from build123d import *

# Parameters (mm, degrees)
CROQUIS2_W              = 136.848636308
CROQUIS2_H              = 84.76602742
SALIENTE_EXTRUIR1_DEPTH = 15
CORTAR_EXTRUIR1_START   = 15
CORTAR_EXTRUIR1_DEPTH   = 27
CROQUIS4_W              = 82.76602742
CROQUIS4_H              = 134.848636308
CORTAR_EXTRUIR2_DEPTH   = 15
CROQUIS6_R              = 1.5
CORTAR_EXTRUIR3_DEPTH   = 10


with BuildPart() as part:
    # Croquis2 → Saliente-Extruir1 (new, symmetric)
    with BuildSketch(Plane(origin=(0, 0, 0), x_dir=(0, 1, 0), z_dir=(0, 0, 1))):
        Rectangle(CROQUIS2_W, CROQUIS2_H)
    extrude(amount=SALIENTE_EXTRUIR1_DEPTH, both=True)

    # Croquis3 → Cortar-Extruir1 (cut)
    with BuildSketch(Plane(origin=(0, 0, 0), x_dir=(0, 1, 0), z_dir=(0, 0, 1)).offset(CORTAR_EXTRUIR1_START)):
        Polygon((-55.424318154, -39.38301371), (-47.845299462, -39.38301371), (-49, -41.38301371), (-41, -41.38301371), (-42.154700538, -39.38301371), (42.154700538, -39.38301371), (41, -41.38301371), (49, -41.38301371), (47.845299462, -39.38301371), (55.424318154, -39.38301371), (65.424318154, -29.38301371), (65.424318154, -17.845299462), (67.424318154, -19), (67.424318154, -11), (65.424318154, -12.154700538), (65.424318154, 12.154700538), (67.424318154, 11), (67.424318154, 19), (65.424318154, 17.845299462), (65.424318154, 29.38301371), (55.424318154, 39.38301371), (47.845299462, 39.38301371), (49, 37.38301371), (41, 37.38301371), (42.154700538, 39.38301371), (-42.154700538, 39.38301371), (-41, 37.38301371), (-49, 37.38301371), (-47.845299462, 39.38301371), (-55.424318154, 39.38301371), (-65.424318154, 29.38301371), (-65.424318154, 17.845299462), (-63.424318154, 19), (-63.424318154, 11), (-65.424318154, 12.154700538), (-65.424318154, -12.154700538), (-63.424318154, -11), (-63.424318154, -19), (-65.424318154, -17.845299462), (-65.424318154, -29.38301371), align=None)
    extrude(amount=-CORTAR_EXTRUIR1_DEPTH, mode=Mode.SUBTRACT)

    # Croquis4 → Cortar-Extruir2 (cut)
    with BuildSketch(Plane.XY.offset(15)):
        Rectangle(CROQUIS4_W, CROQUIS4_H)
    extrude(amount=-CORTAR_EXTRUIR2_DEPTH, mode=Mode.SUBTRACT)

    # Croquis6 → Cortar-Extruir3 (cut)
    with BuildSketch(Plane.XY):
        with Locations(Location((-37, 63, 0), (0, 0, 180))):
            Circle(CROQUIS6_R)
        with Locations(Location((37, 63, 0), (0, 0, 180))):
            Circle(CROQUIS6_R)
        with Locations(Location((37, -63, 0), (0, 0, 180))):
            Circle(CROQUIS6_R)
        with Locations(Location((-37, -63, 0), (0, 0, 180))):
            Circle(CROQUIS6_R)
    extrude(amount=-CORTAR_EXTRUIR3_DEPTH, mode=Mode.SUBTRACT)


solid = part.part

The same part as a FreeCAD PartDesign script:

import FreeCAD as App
import Part
import Sketcher
from FreeCAD import Vector
Q = App.Units.Quantity

doc = App.newDocument("Part")
params = doc.addObject("Spreadsheet::Sheet", "Params")
for row, (alias, value) in enumerate([
    ("pad1_length", "30 mm"),
    ("sketch2_width", "8 mm"),
    ("pocket1_length", "27 mm"),
    ("pocket2_length", "15 mm"),
    ("sketch4_diameter", "3 mm"),
    ("pocket3_length", "10 mm"),
], start=1):
    params.set(f"A{row}", alias)
    params.set(f"B{row}", "=" + value)
    params.setAlias(f"B{row}", alias)

body = doc.addObject("PartDesign::Body", "Body")

# Sketch on XY plane
sketch1 = body.newObject("Sketcher::SketchObject", "Sketch")
sketch1.AttachmentSupport = (doc.getObject("XY_Plane"), [""])
sketch1.MapMode = "FlatFace"
sketch1.addGeometry([
    Part.LineSegment(Vector(-42, -68, 0), Vector(42, -68, 0)),
    Part.LineSegment(Vector(42, -68, 0), Vector(42, 68, 0)),
    Part.LineSegment(Vector(42, 68, 0), Vector(-42, 68, 0)),
    Part.LineSegment(Vector(-42, 68, 0), Vector(-42, -68, 0)),
], False)
sketch1.addConstraint([
    Sketcher.Constraint("Coincident", 0, 2, 1, 1),
    Sketcher.Constraint("Coincident", 1, 2, 2, 1),
    Sketcher.Constraint("Coincident", 2, 2, 3, 1),
    Sketcher.Constraint("Coincident", 3, 2, 0, 1),
    Sketcher.Constraint("Horizontal", 0),
    Sketcher.Constraint("Vertical", 1),
    Sketcher.Constraint("Horizontal", 2),
    Sketcher.Constraint("Vertical", 3),
    Sketcher.Constraint("Symmetric", 0, 2, 2, 2, -1, 1),
    Sketcher.Constraint("DistanceX", 0, 1, 0, 2, 84.766027),
    Sketcher.Constraint("DistanceY", 1, 1, 1, 2, 136.848636),
])
pad1 = body.newObject("PartDesign::Pad", "Pad")
pad1.Profile = sketch1
pad1.setExpression("Length", "Params.pad1_length")
pad1.Midplane = True

# Sketch on XY plane
sketch2 = body.newObject("Sketcher::SketchObject", "Sketch001")
sketch2.AttachmentSupport = (doc.getObject("XY_Plane"), [""])
sketch2.MapMode = "FlatFace"
sketch2.AttachmentOffset = App.Placement(Vector(0, 0, 15), App.Rotation())
sketch2.addGeometry([
    Part.LineSegment(Vector(39.4, -55.4, 0), Vector(39.4, -47.8, 0)),  # 0
    Part.LineSegment(Vector(39.4, -47.8, 0), Vector(41.4, -49, 0)),  # 1
    Part.LineSegment(Vector(41.4, -49, 0), Vector(41.4, -41, 0)),  # 2
    Part.LineSegment(Vector(41.4, -41, 0), Vector(39.4, -42.2, 0)),  # 3
    Part.LineSegment(Vector(39.4, -42.2, 0), Vector(39.4, 42.2, 0)),  # 4
    Part.LineSegment(Vector(39.4, 42.2, 0), Vector(41.4, 41, 0)),  # 5
    Part.LineSegment(Vector(41.4, 41, 0), Vector(41.4, 49, 0)),  # 6
    Part.LineSegment(Vector(41.4, 49, 0), Vector(39.4, 47.8, 0)),  # 7
    Part.LineSegment(Vector(39.4, 47.8, 0), Vector(39.4, 55.4, 0)),  # 8
    Part.LineSegment(Vector(39.4, 55.4, 0), Vector(29.4, 65.4, 0)),  # 9
    Part.LineSegment(Vector(29.4, 65.4, 0), Vector(17.8, 65.4, 0)),  # 10
    Part.LineSegment(Vector(17.8, 65.4, 0), Vector(19, 67.4, 0)),  # 11
    Part.LineSegment(Vector(19, 67.4, 0), Vector(11, 67.4, 0)),  # 12
    Part.LineSegment(Vector(11, 67.4, 0), Vector(12.2, 65.4, 0)),  # 13
    Part.LineSegment(Vector(12.2, 65.4, 0), Vector(-12.2, 65.4, 0)),  # 14
    Part.LineSegment(Vector(-12.2, 65.4, 0), Vector(-11, 67.4, 0)),  # 15
    Part.LineSegment(Vector(-11, 67.4, 0), Vector(-19, 67.4, 0)),  # 16
    Part.LineSegment(Vector(-19, 67.4, 0), Vector(-17.8, 65.4, 0)),  # 17
    Part.LineSegment(Vector(-17.8, 65.4, 0), Vector(-29.4, 65.4, 0)),  # 18
    Part.LineSegment(Vector(-29.4, 65.4, 0), Vector(-39.4, 55.4, 0)),  # 19
    Part.LineSegment(Vector(-39.4, 55.4, 0), Vector(-39.4, 47.8, 0)),  # 20
    Part.LineSegment(Vector(-39.4, 47.8, 0), Vector(-37.4, 49, 0)),  # 21
    Part.LineSegment(Vector(-37.4, 49, 0), Vector(-37.4, 41, 0)),  # 22
    Part.LineSegment(Vector(-37.4, 41, 0), Vector(-39.4, 42.2, 0)),  # 23
    Part.LineSegment(Vector(-39.4, 42.2, 0), Vector(-39.4, -42.2, 0)),  # 24
    Part.LineSegment(Vector(-39.4, -42.2, 0), Vector(-37.4, -41, 0)),  # 25
    Part.LineSegment(Vector(-37.4, -41, 0), Vector(-37.4, -49, 0)),  # 26
    Part.LineSegment(Vector(-37.4, -49, 0), Vector(-39.4, -47.8, 0)),  # 27
    Part.LineSegment(Vector(-39.4, -47.8, 0), Vector(-39.4, -55.4, 0)),  # 28
    Part.LineSegment(Vector(-39.4, -55.4, 0), Vector(-29.4, -65.4, 0)),  # 29
    Part.LineSegment(Vector(-29.4, -65.4, 0), Vector(-17.8, -65.4, 0)),  # 30
    Part.LineSegment(Vector(-17.8, -65.4, 0), Vector(-19, -63.4, 0)),  # 31
    Part.LineSegment(Vector(-19, -63.4, 0), Vector(-11, -63.4, 0)),  # 32
    Part.LineSegment(Vector(-11, -63.4, 0), Vector(-12.2, -65.4, 0)),  # 33
    Part.LineSegment(Vector(-12.2, -65.4, 0), Vector(12.2, -65.4, 0)),  # 34
    Part.LineSegment(Vector(12.2, -65.4, 0), Vector(11, -63.4, 0)),  # 35
    Part.LineSegment(Vector(11, -63.4, 0), Vector(19, -63.4, 0)),  # 36
    Part.LineSegment(Vector(19, -63.4, 0), Vector(17.8, -65.4, 0)),  # 37
    Part.LineSegment(Vector(17.8, -65.4, 0), Vector(29.4, -65.4, 0)),  # 38
    Part.LineSegment(Vector(29.4, -65.4, 0), Vector(39.4, -55.4, 0)),  # 39
], False)
sketch2.addConstraint([
    Sketcher.Constraint("Coincident", 0, 2, 1, 1),
    Sketcher.Constraint("Coincident", 1, 2, 2, 1),
    Sketcher.Constraint("Coincident", 2, 2, 3, 1),
    Sketcher.Constraint("Coincident", 3, 2, 4, 1),
    Sketcher.Constraint("Coincident", 4, 2, 5, 1),
    Sketcher.Constraint("Coincident", 5, 2, 6, 1),
    Sketcher.Constraint("Coincident", 6, 2, 7, 1),
    Sketcher.Constraint("Coincident", 7, 2, 8, 1),
    Sketcher.Constraint("Coincident", 8, 2, 9, 1),
    Sketcher.Constraint("Coincident", 9, 2, 10, 1),
    Sketcher.Constraint("Coincident", 10, 2, 11, 1),
    Sketcher.Constraint("Coincident", 11, 2, 12, 1),
    Sketcher.Constraint("Coincident", 12, 2, 13, 1),
    Sketcher.Constraint("Coincident", 13, 2, 14, 1),
    Sketcher.Constraint("Coincident", 14, 2, 15, 1),
    Sketcher.Constraint("Coincident", 15, 2, 16, 1),
    Sketcher.Constraint("Coincident", 16, 2, 17, 1),
    Sketcher.Constraint("Coincident", 17, 2, 18, 1),
    Sketcher.Constraint("Coincident", 18, 2, 19, 1),
    Sketcher.Constraint("Coincident", 19, 2, 20, 1),
    Sketcher.Constraint("Coincident", 20, 2, 21, 1),
    Sketcher.Constraint("Coincident", 21, 2, 22, 1),
    Sketcher.Constraint("Coincident", 22, 2, 23, 1),
    Sketcher.Constraint("Coincident", 23, 2, 24, 1),
    Sketcher.Constraint("Coincident", 24, 2, 25, 1),
    Sketcher.Constraint("Coincident", 25, 2, 26, 1),
    Sketcher.Constraint("Coincident", 26, 2, 27, 1),
    Sketcher.Constraint("Coincident", 27, 2, 28, 1),
    Sketcher.Constraint("Coincident", 28, 2, 29, 1),
    Sketcher.Constraint("Coincident", 29, 2, 30, 1),
    Sketcher.Constraint("Coincident", 30, 2, 31, 1),
    Sketcher.Constraint("Coincident", 31, 2, 32, 1),
    Sketcher.Constraint("Coincident", 32, 2, 33, 1),
    Sketcher.Constraint("Coincident", 33, 2, 34, 1),
    Sketcher.Constraint("Coincident", 34, 2, 35, 1),
    Sketcher.Constraint("Coincident", 35, 2, 36, 1),
    Sketcher.Constraint("Coincident", 36, 2, 37, 1),
    Sketcher.Constraint("Coincident", 37, 2, 38, 1),
    Sketcher.Constraint("Coincident", 38, 2, 39, 1),
    Sketcher.Constraint("Coincident", 39, 2, 0, 1),
    Sketcher.Constraint("Vertical", 0),
    Sketcher.Constraint("Vertical", 2),
    Sketcher.Constraint("Vertical", 4),
    Sketcher.Constraint("Vertical", 6),
    Sketcher.Constraint("Vertical", 8),
    Sketcher.Constraint("Horizontal", 10),
    Sketcher.Constraint("Horizontal", 12),
    Sketcher.Constraint("Horizontal", 14),
    Sketcher.Constraint("Horizontal", 16),
    Sketcher.Constraint("Horizontal", 18),
    Sketcher.Constraint("Vertical", 20),
    Sketcher.Constraint("Vertical", 22),
    Sketcher.Constraint("Vertical", 24),
    Sketcher.Constraint("Vertical", 26),
    Sketcher.Constraint("Vertical", 28),
    Sketcher.Constraint("Horizontal", 30),
    Sketcher.Constraint("Horizontal", 32),
    Sketcher.Constraint("Horizontal", 34),
    Sketcher.Constraint("Horizontal", 36),
    Sketcher.Constraint("Horizontal", 38),
    Sketcher.Constraint("Symmetric", 0, 2, 20, 2, -1, 1),
    Sketcher.Constraint("Symmetric", 3, 2, 23, 2, -1, 1),
    Sketcher.Constraint("Symmetric", 7, 2, 27, 2, -1, 1),
    Sketcher.Constraint("Symmetric", 9, 2, 29, 2, -1, 1),
    Sketcher.Constraint("Symmetric", 13, 2, 33, 2, -1, 1),
    Sketcher.Constraint("Symmetric", 17, 2, 37, 2, -1, 1),
    Sketcher.Constraint("Symmetric", 12, 2, 15, 2, -2),
    Sketcher.Constraint("Symmetric", 10, 2, 17, 2, -2),
    Sketcher.Constraint("Symmetric", 8, 2, 19, 2, -2),
    Sketcher.Constraint("Symmetric", 32, 2, 35, 2, -2),
    Sketcher.Constraint("Symmetric", 2, 2, 5, 2, -1),
    Sketcher.Constraint("Symmetric", 22, 2, 25, 2, -1),
    Sketcher.Constraint("Parallel", 1, 5),
    Sketcher.Constraint("Parallel", 3, 7),
    Sketcher.Constraint("Perpendicular", 5, 11),
    Sketcher.Constraint("Perpendicular", 7, 13),
    Sketcher.Constraint("Parallel", 11, 15),
    Sketcher.Constraint("Parallel", 13, 17),
    Sketcher.Constraint("Perpendicular", 9, 19),
    Sketcher.Constraint("Perpendicular", 17, 21),
    Sketcher.Constraint("Perpendicular", 15, 23),
    Sketcher.Constraint("Parallel", 21, 25),
    Sketcher.Constraint("Parallel", 23, 27),
    Sketcher.Constraint("Perpendicular", 19, 29),
    Sketcher.Constraint("Perpendicular", 25, 31),
    Sketcher.Constraint("Perpendicular", 27, 33),
    Sketcher.Constraint("Parallel", 31, 35),
    Sketcher.Constraint("Parallel", 33, 37),
    Sketcher.Constraint("Perpendicular", 29, 39),
    Sketcher.Constraint("Horizontal", 10, 2, 13, 2),
    Sketcher.Constraint("Horizontal", 7, 2, 20, 2),
    Sketcher.Constraint("Horizontal", 6, 2, 21, 2),
    Sketcher.Constraint("Horizontal", 5, 2, 22, 2),
    Sketcher.Constraint("Horizontal", 4, 2, 23, 2),
    Sketcher.Constraint("Horizontal", 28, 2, 39, 2),
    Sketcher.Constraint("Vertical", 18, 2, 29, 2),
    Sketcher.Constraint("Vertical", 17, 2, 30, 2),
    Sketcher.Constraint("Vertical", 16, 2, 31, 2),
    Sketcher.Constraint("Equal", 36, 2),
    Sketcher.Constraint("Equal", 7, 11),
    Sketcher.Constraint("DistanceX", 12, 2, 12, 1, 8.0),
    Sketcher.Constraint("Angle", 1, Q("-30 deg")),
    Sketcher.Constraint("DistanceY", 1, 2, -1, 1, 49.0),
    Sketcher.Constraint("DistanceX", -1, 1, 11, 2, 19.0),
    Sketcher.Constraint("DistanceX", 0, 2, 1, 2, 2.0),
    Sketcher.Constraint("DistanceX", 9, 2, 8, 2, 10.0),
    Sketcher.Constraint("DistanceY", 0, 1, 0, 2, 7.579019),
    Sketcher.Constraint("DistanceX", 10, 2, 10, 1, 11.537714),
])
sketch2.setExpression("Constraints[100]", "Params.sketch2_width")
pocket1 = body.newObject("PartDesign::Pocket", "Pocket")
pocket1.Profile = sketch2
pocket1.setExpression("Length", "Params.pocket1_length")

# Sketch on XY plane
sketch3 = body.newObject("Sketcher::SketchObject", "Sketch002")
sketch3.AttachmentSupport = (doc.getObject("XY_Plane"), [""])
sketch3.MapMode = "FlatFace"
sketch3.AttachmentOffset = App.Placement(Vector(0, 0, 15), App.Rotation())
sketch3.addGeometry([
    Part.LineSegment(Vector(-41, 67, 0), Vector(-41, -67, 0)),
    Part.LineSegment(Vector(-41, -67, 0), Vector(41, -67, 0)),
    Part.LineSegment(Vector(41, -67, 0), Vector(41, 67, 0)),
    Part.LineSegment(Vector(41, 67, 0), Vector(-41, 67, 0)),
], False)
sketch3.addConstraint([
    Sketcher.Constraint("Coincident", 0, 2, 1, 1),
    Sketcher.Constraint("Coincident", 1, 2, 2, 1),
    Sketcher.Constraint("Coincident", 2, 2, 3, 1),
    Sketcher.Constraint("Coincident", 3, 2, 0, 1),
    Sketcher.Constraint("Vertical", 0),
    Sketcher.Constraint("Horizontal", 1),
    Sketcher.Constraint("Vertical", 2),
    Sketcher.Constraint("Horizontal", 3),
    Sketcher.Constraint("Symmetric", 0, 2, 2, 2, -1, 1),
    Sketcher.Constraint("DistanceX", 1, 1, 1, 2, 82.766027),
    Sketcher.Constraint("DistanceY", 0, 2, 0, 1, 134.848636),
])
pocket2 = body.newObject("PartDesign::Pocket", "Pocket001")
pocket2.Profile = sketch3
pocket2.setExpression("Length", "Params.pocket2_length")

# Sketch on XY plane
sketch4 = body.newObject("Sketcher::SketchObject", "Sketch003")
sketch4.AttachmentSupport = (doc.getObject("XY_Plane"), [""])
sketch4.MapMode = "FlatFace"
sketch4.addGeometry([
    Part.Circle(Vector(-37, 63, 0), Vector(0, 0, 1), 1.5),
    Part.Circle(Vector(37, 63, 0), Vector(0, 0, 1), 1.5),
    Part.Circle(Vector(37, -63, 0), Vector(0, 0, 1), 1.5),
    Part.Circle(Vector(-37, -63, 0), Vector(0, 0, 1), 1.5),
], False)
sketch4.addConstraint([
    Sketcher.Constraint("Equal", 0, 1),
    Sketcher.Constraint("Equal", 1, 2),
    Sketcher.Constraint("Equal", 2, 3),
    Sketcher.Constraint("Symmetric", 0, 3, 2, 3, -1, 1),
    Sketcher.Constraint("Symmetric", 1, 3, 3, 3, -1, 1),
    Sketcher.Constraint("Symmetric", 0, 3, 1, 3, -2),
    Sketcher.Constraint("Diameter", 0, 3.0),
    Sketcher.Constraint("DistanceX", 0, 3, -1, 1, 37.0),
    Sketcher.Constraint("DistanceY", -1, 1, 0, 3, 63.0),
])
sketch4.setExpression("Constraints[6]", "Params.sketch4_diameter")
pocket3 = body.newObject("PartDesign::Pocket", "Pocket002")
pocket3.Profile = sketch4
pocket3.setExpression("Length", "Params.pocket3_length")

doc.recompute()
